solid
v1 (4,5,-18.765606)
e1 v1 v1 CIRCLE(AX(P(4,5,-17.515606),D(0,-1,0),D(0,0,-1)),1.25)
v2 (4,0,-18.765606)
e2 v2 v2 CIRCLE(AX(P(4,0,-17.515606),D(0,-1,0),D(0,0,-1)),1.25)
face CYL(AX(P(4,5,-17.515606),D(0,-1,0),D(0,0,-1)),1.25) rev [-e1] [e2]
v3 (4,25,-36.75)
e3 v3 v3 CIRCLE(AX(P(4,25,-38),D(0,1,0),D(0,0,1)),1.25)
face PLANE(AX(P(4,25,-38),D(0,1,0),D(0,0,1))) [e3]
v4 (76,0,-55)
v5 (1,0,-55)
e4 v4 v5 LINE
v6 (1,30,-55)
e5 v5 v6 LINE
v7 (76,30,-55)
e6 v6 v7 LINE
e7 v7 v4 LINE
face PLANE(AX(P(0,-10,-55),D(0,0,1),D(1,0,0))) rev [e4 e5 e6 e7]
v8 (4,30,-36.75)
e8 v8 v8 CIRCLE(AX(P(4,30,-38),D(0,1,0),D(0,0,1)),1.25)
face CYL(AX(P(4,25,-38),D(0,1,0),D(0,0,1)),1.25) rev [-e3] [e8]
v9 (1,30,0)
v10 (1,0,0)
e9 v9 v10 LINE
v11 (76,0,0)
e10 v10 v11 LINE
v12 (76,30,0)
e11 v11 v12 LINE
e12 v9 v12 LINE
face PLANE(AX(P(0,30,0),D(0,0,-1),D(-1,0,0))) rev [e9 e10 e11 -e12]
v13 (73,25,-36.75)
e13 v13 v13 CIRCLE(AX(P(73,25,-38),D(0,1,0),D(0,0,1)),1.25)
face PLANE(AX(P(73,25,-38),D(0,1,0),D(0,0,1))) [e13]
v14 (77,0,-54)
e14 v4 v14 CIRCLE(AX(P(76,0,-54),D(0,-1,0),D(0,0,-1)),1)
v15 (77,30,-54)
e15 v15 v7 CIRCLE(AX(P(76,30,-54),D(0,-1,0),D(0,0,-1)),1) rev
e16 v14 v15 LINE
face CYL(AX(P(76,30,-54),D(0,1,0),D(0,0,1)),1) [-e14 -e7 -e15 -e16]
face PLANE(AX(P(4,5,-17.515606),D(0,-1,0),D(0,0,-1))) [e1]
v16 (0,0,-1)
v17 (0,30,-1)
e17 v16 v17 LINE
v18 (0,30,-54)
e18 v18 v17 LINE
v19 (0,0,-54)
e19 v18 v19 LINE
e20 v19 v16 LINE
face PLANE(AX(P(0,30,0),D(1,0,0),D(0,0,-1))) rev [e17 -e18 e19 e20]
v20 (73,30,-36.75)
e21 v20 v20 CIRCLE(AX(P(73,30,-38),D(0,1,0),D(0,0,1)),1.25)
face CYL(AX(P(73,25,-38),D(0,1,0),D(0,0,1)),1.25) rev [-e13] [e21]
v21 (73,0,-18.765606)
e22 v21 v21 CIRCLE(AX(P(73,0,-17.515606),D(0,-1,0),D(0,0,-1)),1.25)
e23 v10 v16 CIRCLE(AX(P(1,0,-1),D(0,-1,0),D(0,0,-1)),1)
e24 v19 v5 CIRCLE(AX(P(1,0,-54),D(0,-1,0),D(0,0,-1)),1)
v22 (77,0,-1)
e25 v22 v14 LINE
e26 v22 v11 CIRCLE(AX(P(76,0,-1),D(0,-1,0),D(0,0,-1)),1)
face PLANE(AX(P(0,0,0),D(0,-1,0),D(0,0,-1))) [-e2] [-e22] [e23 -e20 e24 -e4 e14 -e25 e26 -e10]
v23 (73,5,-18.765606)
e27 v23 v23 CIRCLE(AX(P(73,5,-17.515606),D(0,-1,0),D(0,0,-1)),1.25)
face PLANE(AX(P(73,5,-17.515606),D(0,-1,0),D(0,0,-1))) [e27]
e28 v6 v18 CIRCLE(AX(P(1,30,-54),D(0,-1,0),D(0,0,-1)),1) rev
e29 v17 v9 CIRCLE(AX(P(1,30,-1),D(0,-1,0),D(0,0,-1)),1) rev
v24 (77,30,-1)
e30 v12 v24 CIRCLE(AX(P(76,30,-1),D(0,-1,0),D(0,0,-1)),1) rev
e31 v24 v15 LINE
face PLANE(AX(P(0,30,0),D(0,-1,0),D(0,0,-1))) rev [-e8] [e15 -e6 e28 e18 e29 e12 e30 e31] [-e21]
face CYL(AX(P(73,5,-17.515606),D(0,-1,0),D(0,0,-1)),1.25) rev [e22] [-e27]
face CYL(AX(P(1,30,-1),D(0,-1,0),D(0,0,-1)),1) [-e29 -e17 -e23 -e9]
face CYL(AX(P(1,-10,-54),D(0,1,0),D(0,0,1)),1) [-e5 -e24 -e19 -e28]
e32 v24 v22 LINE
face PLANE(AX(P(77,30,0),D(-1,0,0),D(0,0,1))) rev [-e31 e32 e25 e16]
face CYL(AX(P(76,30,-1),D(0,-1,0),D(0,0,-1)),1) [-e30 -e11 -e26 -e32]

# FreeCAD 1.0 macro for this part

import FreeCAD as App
import Part
import Sketcher
from FreeCAD import Vector
Q = App.Units.Quantity


def edges_at(feature, points):
    """Names of the edges that pass closest to the given points."""
    edges = feature.Shape.Edges
    near = lambda p: min(range(len(edges)), key=lambda i: edges[i].distToShape(Part.Vertex(*p))[0])
    return sorted({f"Edge{near(p) + 1}" for p in points})

doc = App.newDocument("Part")
body = doc.addObject("PartDesign::Body", "Body")

sketch1 = body.newObject("Sketcher::SketchObject", "Sketch")
sketch1.AttachmentSupport = (doc.getObject("XZ_Plane"), [""])
sketch1.MapMode = "FlatFace"
sketch1.addGeometry([
    Part.LineSegment(Vector(0, -60, 0), Vector(0, 0, 0)),
    Part.LineSegment(Vector(0, 0, 0), Vector(77, 0, 0)),
    Part.LineSegment(Vector(77, 0, 0), Vector(77, -60, 0)),
    Part.LineSegment(Vector(77, -60, 0), Vector(0, -60, 0)),
], False)
sketch1.addConstraint([
    Sketcher.Constraint("Coincident", 0, 2, 1, 1),
    Sketcher.Constraint("Coincident", 1, 2, 2, 1),
    Sketcher.Constraint("Coincident", 2, 2, 3, 1),
    Sketcher.Constraint("Coincident", 3, 2, 0, 1),
    Sketcher.Constraint("Vertical", 0),
    Sketcher.Constraint("Horizontal", 1),
    Sketcher.Constraint("Vertical", 2),
    Sketcher.Constraint("Horizontal", 3),
    Sketcher.Constraint("Coincident", 0, 2, -1, 1),
    Sketcher.Constraint("DistanceX", 1, 1, 1, 2, Q("77 mm")),
    Sketcher.Constraint("DistanceY", 0, 1, 0, 2, Q("60 mm")),
])
pad1 = body.newObject("PartDesign::Pad", "Pad")
pad1.Profile = sketch1
pad1.Length = 30
pad1.Reversed = True
doc.recompute()

fillet = body.newObject("PartDesign::Fillet", "Fillet")
fillet.Base = (pad1, edges_at(pad1, [
    (0, 15, -60),
    (77, 15, -60),
    (77, 15, 0),
    (0, 15, 0),
]))
fillet.Radius = 1

sketch2 = body.newObject("Sketcher::SketchObject", "Sketch001")
sketch2.AttachmentSupport = (doc.getObject("XZ_Plane"), [""])
sketch2.MapMode = "FlatFace"
sketch2.AttachmentOffset = App.Placement(Vector(0, 0, -30), App.Rotation())
sketch2.addGeometry([
    Part.LineSegment(Vector(0, -60, 0), Vector(0, -55, 0)),
    Part.LineSegment(Vector(0, -55, 0), Vector(77, -55, 0)),
    Part.LineSegment(Vector(77, -55, 0), Vector(77, -60, 0)),
    Part.LineSegment(Vector(77, -60, 0), Vector(0, -60, 0)),
], False)
sketch2.addConstraint([
    Sketcher.Constraint("Coincident", 0, 2, 1, 1),
    Sketcher.Constraint("Coincident", 1, 2, 2, 1),
    Sketcher.Constraint("Coincident", 2, 2, 3, 1),
    Sketcher.Constraint("Coincident", 3, 2, 0, 1),
    Sketcher.Constraint("Vertical", 0),
    Sketcher.Constraint("Horizontal", 1),
    Sketcher.Constraint("Vertical", 2),
    Sketcher.Constraint("Horizontal", 3),
    Sketcher.Constraint("PointOnObject", 0, 2, -2),
    Sketcher.Constraint("DistanceX", 1, 1, 1, 2, Q("77 mm")),
    Sketcher.Constraint("DistanceY", 0, 2, -1, 1, Q("55 mm")),
    Sketcher.Constraint("DistanceY", 0, 1, 0, 2, Q("5.029469 mm")),
])
pocket1 = body.newObject("PartDesign::Pocket", "Pocket")
pocket1.Profile = sketch2
pocket1.Length = 40
pocket1.Reversed = True
doc.recompute()

fillet2 = body.newObject("PartDesign::Fillet", "Fillet001")
fillet2.Base = (pocket1, edges_at(pocket1, [(0, 15, -55), (77, 15, -55)]))
fillet2.Radius = 1

sketch3 = body.newObject("Sketcher::SketchObject", "Sketch002")
sketch3.AttachmentSupport = (doc.getObject("XZ_Plane"), [""])
sketch3.MapMode = "FlatFace"
sketch3.addGeometry(Part.Circle(Vector(73, -17.5, 0), Vector(0, 0, 1), 1.2), False)
sketch3.addConstraint([
    Sketcher.Constraint("Diameter", 0, Q("2.5 mm")),
    Sketcher.Constraint("DistanceX", -1, 1, 0, 3, Q("73 mm")),
    Sketcher.Constraint("DistanceY", 0, 3, -1, 1, Q("17.515606 mm")),
])
pocket2 = body.newObject("PartDesign::Pocket", "Pocket001")
pocket2.Profile = sketch3
pocket2.Length = 5

sketch4 = body.newObject("Sketcher::SketchObject", "Sketch003")
sketch4.AttachmentSupport = (doc.getObject("XZ_Plane"), [""])
sketch4.MapMode = "FlatFace"
sketch4.addGeometry(Part.Circle(Vector(4, -17.5, 0), Vector(0, 0, 1), 1.2), False)
sketch4.addConstraint([
    Sketcher.Constraint("Diameter", 0, Q("2.5 mm")),
    Sketcher.Constraint("DistanceX", -1, 1, 0, 3, Q("4 mm")),
    Sketcher.Constraint("DistanceY", 0, 3, -1, 1, Q("17.515606 mm")),
])
pocket3 = body.newObject("PartDesign::Pocket", "Pocket002")
pocket3.Profile = sketch4
pocket3.Length = 5

sketch5 = body.newObject("Sketcher::SketchObject", "Sketch004")
sketch5.AttachmentSupport = (doc.getObject("XZ_Plane"), [""])
sketch5.MapMode = "FlatFace"
sketch5.AttachmentOffset = App.Placement(Vector(0, 0, -30), App.Rotation())
sketch5.addGeometry([
    Part.Circle(Vector(73, -38, 0), Vector(0, 0, 1), 1.2),
    Part.Circle(Vector(4, -38, 0), Vector(0, 0, 1), 1.2),
], False)
sketch5.addConstraint([
    Sketcher.Constraint("Equal", 0, 1),
    Sketcher.Constraint("Horizontal", 0, 3, 1, 3),
    Sketcher.Constraint("Diameter", 0, Q("2.5 mm")),
    Sketcher.Constraint("DistanceX", -1, 1, 0, 3, Q("73 mm")),
    Sketcher.Constraint("DistanceY", 0, 3, -1, 1, Q("38 mm")),
    Sketcher.Constraint("DistanceX", -1, 1, 1, 3, Q("4 mm")),
])
pocket4 = body.newObject("PartDesign::Pocket", "Pocket003")
pocket4.Profile = sketch5
pocket4.Length = 5
pocket4.Reversed = True

doc.recompute()
